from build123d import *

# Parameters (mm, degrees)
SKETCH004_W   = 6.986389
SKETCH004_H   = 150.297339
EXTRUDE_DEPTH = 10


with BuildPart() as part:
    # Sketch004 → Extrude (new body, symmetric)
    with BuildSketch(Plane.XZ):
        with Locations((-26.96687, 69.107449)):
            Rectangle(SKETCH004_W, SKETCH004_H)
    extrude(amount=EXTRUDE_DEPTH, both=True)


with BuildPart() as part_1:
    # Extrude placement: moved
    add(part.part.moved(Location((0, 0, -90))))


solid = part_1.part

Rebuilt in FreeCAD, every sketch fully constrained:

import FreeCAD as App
import Part
import Sketcher
from FreeCAD import Vector
Q = App.Units.Quantity


def add_polygon(sketch, points):
    """Adds a closed chain of lines whose ends are joined by coincident constraints."""
    first, n = sketch.GeometryCount, len(points)
    for a, b in zip(points, points[1:] + points[:1]):
        sketch.addGeometry(Part.LineSegment(App.Vector(*a, 0), App.Vector(*b, 0)), False)
    for i in range(n):
        sketch.addConstraint(Sketcher.Constraint("Coincident", first + i, 2, first + (i + 1) % n, 1))

doc = App.newDocument("Part")
body = doc.addObject("PartDesign::Body", "Body")

sketch1 = doc.addObject("Sketcher::SketchObject", "Sketch")
body.addObject(sketch1)
sketch1.AttachmentSupport = (doc.XZ_Plane, [""])
sketch1.MapMode = "FlatFace"
add_polygon(sketch1, [(-30, 144), (-30, -6), (-23, -6), (-23, 144)])
sketch1.addConstraint([
    Sketcher.Constraint("Vertical", 0),
    Sketcher.Constraint("Horizontal", 1),
    Sketcher.Constraint("Vertical", 2),
    Sketcher.Constraint("Horizontal", 3),
    Sketcher.Constraint("DistanceX", 1, 1, 1, 2, Q("6.986389 mm")),
    Sketcher.Constraint("DistanceY", 0, 2, 0, 1, Q("150.297339 mm")),
    Sketcher.Constraint("DistanceY", 0, 2, -1, 1, Q("6.04122 mm")),
    Sketcher.Constraint("DistanceX", 0, 2, -1, 1, Q("30.460065 mm")),
])
pad1 = doc.addObject("PartDesign::Pad", "Pad")
body.addObject(pad1)
pad1.Profile = sketch1
pad1.Length = 20
pad1.Midplane = True
body2 = doc.addObject("PartDesign::Body", "Body001")
doc.recompute()

body.Placement = App.Placement(Vector(0, 0, -90), App.Rotation(Vector(0, 0, 1), 0))
boolean = doc.addObject("PartDesign::Boolean", "Boolean")
body2.addObject(boolean)
boolean.Type = "Fuse"
boolean.addObjects([body])

doc.recompute()
